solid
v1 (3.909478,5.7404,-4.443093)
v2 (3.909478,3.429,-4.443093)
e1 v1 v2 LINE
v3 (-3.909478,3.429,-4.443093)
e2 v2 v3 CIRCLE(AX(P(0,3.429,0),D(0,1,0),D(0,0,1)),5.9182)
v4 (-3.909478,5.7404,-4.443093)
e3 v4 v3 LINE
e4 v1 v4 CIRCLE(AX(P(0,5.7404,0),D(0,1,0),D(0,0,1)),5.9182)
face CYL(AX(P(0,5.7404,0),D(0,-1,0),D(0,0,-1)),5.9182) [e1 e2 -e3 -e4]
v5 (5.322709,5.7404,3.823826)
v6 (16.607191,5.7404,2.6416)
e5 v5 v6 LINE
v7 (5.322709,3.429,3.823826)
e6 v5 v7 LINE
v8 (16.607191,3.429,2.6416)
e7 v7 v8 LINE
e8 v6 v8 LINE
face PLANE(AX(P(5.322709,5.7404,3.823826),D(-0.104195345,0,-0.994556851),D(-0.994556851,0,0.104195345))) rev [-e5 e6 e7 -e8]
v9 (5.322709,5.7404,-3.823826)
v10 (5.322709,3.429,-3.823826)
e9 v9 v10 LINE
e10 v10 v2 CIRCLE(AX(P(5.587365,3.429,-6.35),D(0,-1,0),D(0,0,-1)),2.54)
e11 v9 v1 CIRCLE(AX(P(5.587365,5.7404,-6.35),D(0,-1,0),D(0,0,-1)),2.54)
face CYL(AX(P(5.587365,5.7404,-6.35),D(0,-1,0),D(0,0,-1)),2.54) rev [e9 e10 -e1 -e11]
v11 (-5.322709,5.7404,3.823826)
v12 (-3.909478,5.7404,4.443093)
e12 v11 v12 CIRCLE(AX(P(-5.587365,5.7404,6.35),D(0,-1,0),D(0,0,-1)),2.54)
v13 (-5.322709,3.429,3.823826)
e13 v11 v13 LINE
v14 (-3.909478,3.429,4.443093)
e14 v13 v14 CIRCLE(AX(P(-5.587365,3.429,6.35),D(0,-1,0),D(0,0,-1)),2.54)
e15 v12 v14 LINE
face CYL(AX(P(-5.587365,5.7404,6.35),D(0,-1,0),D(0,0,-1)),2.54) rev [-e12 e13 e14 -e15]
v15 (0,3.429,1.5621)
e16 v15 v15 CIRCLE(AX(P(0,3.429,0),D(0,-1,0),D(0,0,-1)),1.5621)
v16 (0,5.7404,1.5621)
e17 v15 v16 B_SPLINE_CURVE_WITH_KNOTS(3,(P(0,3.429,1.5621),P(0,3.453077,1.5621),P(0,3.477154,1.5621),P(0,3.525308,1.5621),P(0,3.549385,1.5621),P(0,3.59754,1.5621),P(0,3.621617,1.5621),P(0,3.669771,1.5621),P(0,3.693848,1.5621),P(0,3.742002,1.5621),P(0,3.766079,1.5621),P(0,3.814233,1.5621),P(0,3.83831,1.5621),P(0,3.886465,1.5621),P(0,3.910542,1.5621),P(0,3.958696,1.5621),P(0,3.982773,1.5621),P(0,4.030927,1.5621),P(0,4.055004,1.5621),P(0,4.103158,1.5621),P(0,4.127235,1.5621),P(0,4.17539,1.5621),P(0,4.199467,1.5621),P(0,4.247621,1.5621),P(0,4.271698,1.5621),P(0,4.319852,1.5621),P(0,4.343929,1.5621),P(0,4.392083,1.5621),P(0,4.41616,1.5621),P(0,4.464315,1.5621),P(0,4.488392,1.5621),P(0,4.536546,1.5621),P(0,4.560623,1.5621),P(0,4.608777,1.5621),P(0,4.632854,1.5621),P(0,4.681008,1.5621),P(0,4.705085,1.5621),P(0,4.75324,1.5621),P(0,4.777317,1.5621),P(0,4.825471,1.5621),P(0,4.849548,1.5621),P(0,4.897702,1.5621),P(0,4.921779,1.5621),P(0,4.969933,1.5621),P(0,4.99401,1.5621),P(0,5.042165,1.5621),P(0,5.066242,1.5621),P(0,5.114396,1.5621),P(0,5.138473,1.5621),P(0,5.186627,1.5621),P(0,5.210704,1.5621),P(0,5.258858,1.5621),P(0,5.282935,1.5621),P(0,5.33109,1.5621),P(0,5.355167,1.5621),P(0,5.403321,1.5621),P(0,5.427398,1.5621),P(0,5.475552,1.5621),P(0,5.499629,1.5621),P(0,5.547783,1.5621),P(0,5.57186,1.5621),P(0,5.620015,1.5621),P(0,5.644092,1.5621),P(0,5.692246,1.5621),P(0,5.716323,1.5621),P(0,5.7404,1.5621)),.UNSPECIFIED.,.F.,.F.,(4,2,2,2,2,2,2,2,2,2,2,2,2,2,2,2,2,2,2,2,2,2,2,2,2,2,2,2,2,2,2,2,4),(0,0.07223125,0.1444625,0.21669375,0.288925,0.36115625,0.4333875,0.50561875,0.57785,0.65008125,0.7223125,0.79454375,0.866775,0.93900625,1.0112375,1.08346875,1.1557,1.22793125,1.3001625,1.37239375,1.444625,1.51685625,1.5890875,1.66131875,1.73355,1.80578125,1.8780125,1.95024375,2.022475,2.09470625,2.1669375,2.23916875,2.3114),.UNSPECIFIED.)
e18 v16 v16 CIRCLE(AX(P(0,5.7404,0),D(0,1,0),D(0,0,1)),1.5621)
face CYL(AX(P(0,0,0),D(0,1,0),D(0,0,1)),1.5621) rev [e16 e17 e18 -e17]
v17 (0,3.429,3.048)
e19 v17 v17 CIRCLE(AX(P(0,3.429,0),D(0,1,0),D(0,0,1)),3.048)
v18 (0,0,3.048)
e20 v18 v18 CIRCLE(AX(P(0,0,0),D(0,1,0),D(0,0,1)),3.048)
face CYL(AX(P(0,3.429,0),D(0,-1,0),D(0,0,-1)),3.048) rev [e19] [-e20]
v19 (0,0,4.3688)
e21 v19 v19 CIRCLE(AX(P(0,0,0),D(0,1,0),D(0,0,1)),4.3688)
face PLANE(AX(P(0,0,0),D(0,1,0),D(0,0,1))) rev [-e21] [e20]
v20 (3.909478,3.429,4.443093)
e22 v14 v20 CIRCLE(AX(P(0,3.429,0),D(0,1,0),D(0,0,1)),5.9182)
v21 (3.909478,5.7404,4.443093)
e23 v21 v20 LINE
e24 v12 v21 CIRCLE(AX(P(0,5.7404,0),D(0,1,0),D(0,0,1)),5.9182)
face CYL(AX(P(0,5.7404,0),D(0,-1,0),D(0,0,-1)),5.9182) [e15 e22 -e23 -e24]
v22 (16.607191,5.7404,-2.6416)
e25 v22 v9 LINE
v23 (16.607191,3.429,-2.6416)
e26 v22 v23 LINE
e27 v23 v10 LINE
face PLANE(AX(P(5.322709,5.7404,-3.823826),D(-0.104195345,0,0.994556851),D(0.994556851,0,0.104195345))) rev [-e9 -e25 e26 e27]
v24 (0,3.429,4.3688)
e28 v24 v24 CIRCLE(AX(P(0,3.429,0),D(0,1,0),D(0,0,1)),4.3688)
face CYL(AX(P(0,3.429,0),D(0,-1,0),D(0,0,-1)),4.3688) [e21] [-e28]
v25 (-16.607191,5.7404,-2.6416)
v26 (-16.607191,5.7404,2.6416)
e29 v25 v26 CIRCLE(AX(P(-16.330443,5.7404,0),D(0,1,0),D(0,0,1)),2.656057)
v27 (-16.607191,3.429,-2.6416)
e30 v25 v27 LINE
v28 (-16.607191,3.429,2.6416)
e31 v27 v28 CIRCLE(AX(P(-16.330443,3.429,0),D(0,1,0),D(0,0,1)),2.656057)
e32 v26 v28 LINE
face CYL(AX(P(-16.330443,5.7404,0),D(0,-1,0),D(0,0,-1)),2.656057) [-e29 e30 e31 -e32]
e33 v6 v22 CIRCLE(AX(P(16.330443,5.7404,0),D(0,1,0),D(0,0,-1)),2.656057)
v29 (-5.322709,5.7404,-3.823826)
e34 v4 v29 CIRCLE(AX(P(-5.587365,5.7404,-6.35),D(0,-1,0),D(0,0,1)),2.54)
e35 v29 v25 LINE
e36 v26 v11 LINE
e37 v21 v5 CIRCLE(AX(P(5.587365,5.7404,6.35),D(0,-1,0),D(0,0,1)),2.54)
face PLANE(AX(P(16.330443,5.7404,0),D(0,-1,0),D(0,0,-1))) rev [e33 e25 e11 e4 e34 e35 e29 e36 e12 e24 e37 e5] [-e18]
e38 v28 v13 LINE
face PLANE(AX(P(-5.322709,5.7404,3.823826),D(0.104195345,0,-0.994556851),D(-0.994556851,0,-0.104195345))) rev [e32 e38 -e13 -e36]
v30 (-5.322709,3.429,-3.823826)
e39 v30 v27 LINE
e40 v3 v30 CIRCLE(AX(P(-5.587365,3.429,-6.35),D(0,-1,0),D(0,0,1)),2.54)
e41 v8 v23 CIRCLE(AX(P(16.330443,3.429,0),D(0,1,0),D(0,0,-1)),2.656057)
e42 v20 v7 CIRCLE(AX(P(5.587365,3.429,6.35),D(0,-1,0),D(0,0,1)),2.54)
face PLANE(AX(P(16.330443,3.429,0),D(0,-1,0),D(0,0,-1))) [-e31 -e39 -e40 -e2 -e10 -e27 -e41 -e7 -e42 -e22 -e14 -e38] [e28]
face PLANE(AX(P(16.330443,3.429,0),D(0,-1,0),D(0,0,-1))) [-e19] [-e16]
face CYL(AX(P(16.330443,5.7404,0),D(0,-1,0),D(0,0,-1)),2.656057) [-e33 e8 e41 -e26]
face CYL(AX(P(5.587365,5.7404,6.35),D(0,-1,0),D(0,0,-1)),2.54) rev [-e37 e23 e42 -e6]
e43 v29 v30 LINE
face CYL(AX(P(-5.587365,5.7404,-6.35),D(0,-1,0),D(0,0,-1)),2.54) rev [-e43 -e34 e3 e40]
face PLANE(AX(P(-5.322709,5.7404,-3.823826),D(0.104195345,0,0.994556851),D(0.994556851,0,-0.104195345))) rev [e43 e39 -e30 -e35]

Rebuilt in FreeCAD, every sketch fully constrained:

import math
import FreeCAD as App
import Part
import Sketcher
Q = App.Units.Quantity

doc = App.newDocument("Part")
body = doc.addObject("PartDesign::Body", "Body")

# Sketch on XZ plane
sketch1 = doc.addObject("Sketcher::SketchObject", "Sketch")
body.addObject(sketch1)
sketch1.AttachmentSupport = (doc.XZ_Plane, [""])
sketch1.MapMode = "FlatFace"
sketch1.addGeometry([
    Part.Circle(App.Vector(0, 0, 0), App.Vector(0, 0, 1), 4.3688),
    Part.Circle(App.Vector(0, 0, 0), App.Vector(0, 0, 1), 3.048),
], False)
sketch1.addConstraint([
    Sketcher.Constraint("Coincident", 0, 3, -1, 1),
    Sketcher.Constraint("Coincident", 1, 3, -1, 1),
    Sketcher.Constraint("Diameter", 1, Q("0.24 in")),
    Sketcher.Constraint("Diameter", 0, Q("0.344 in")),
])
pad1 = doc.addObject("PartDesign::Pad", "Pad")
body.addObject(pad1)
pad1.Profile = sketch1
pad1.Length = Q("0.135 in")
pad1.Reversed = True

# Sketch on XZ plane
sketch2 = doc.addObject("Sketcher::SketchObject", "Sketch001")
body.addObject(sketch2)
sketch2.AttachmentSupport = (doc.XZ_Plane, [""])
sketch2.MapMode = "FlatFace"
sketch2.AttachmentOffset = App.Placement(App.Vector(0, 0, -0.135 * 25.4), App.Rotation())
sketch2.addGeometry([
    Part.LineSegment(App.Vector(16.607191, -2.6416, 0), App.Vector(5.322709, -3.823826, 0)),  # 0
    Part.ArcOfCircle(Part.Circle(App.Vector(5.587365, -6.35, 0), App.Vector(0, 0, 1), 2.54), math.radians(95.980809), math.radians(131.344548)),  # 1
    Part.ArcOfCircle(Part.Circle(App.Vector(0, 0, 0), App.Vector(0, 0, 1), 5.9182), math.radians(-131.344548), math.radians(-48.655452)),  # 2
    Part.ArcOfCircle(Part.Circle(App.Vector(-5.587365, -6.35, 0), App.Vector(0, 0, 1), 2.54), math.radians(48.655452), math.radians(84.019191)),  # 3
    Part.LineSegment(App.Vector(-5.322709, -3.823826, 0), App.Vector(-16.607191, -2.6416, 0)),  # 4
    Part.ArcOfCircle(Part.Circle(App.Vector(-16.330443, 0, 0), App.Vector(0, 0, 1), 2.656057), math.radians(95.980809), math.radians(264.019191)),  # 5
    Part.LineSegment(App.Vector(-16.607191, 2.6416, 0), App.Vector(-5.322709, 3.823826, 0)),  # 6
    Part.ArcOfCircle(Part.Circle(App.Vector(-5.587365, 6.35, 0), App.Vector(0, 0, 1), 2.54), math.radians(-84.019191), math.radians(-48.655452)),  # 7
    Part.ArcOfCircle(Part.Circle(App.Vector(0, 0, 0), App.Vector(0, 0, 1), 5.9182), math.radians(48.655452), math.radians(131.344548)),  # 8
    Part.ArcOfCircle(Part.Circle(App.Vector(5.587365, 6.35, 0), App.Vector(0, 0, 1), 2.54), math.radians(-131.344548), math.radians(-95.980809)),  # 9
    Part.LineSegment(App.Vector(5.322709, 3.823826, 0), App.Vector(16.607191, 2.6416, 0)),  # 10
    Part.ArcOfCircle(Part.Circle(App.Vector(16.330443, 0, 0), App.Vector(0, 0, 1), 2.656057), math.radians(-84.019191), math.radians(84.019191)),  # 11
], False)
sketch2.addConstraint([
    Sketcher.Constraint("Tangent", 0, 2, 1, 1),
    Sketcher.Constraint("Tangent", 1, 2, 2, 2),
    Sketcher.Constraint("Tangent", 2, 1, 3, 1),
    Sketcher.Constraint("Tangent", 3, 2, 4, 1),
    Sketcher.Constraint("Tangent", 4, 2, 5, 2),
    Sketcher.Constraint("Tangent", 5, 1, 6, 1),
    Sketcher.Constraint("Tangent", 6, 2, 7, 1),
    Sketcher.Constraint("Tangent", 7, 2, 8, 2),
    Sketcher.Constraint("Tangent", 8, 1, 9, 1),
    Sketcher.Constraint("Tangent", 9, 2, 10, 1),
    Sketcher.Constraint("Tangent", 10, 2, 11, 2),
    Sketcher.Constraint("Tangent", 11, 1, 0, 1),
    Sketcher.Constraint("Coincident", 2, 3, -1, 1),
    Sketcher.Constraint("Coincident", 8, 3, -1, 1),
    Sketcher.Constraint("Equal", 1, 3),
    Sketcher.Constraint("Equal", 3, 7),
    Sketcher.Constraint("Equal", 2, 8),
    Sketcher.Constraint("Equal", 7, 9),
    Sketcher.Constraint("Equal", 5, 11),
    Sketcher.Constraint("Symmetric", 5, 3, 11, 3, -1, 1),
    Sketcher.Constraint("Symmetric", 0, 2, 3, 2, -2),
    Sketcher.Constraint("Parallel", 0, 6),
    Sketcher.Constraint("Parallel", 4, 10),
    Sketcher.Constraint("Radius", 1, Q("0.1 in")),
    Sketcher.Constraint("Radius", 2, Q("0.233 in")),
    Sketcher.Constraint("DistanceY", 3, 3, 7, 3, Q("0.5 in")),
    Sketcher.Constraint("DistanceY", 4, 2, -1, 1, Q("0.104 in")),
    Sketcher.Constraint("Distance", 0, 11.346242),
])
pad2 = doc.addObject("PartDesign::Pad", "Pad001")
body.addObject(pad2)
pad2.Profile = sketch2
pad2.Length = Q("0.091 in")
pad2.Reversed = True

# Sketch on XZ plane
sketch3 = doc.addObject("Sketcher::SketchObject", "Sketch002")
body.addObject(sketch3)
sketch3.AttachmentSupport = (doc.XZ_Plane, [""])
sketch3.MapMode = "FlatFace"
sketch3.AttachmentOffset = App.Placement(App.Vector(0, 0, -0.226 * 25.4), App.Rotation())
sketch3.addGeometry(Part.Circle(App.Vector(0, 0, 0), App.Vector(0, 0, 1), 1.5621), False)
sketch3.addConstraint([
    Sketcher.Constraint("Coincident", 0, 3, -1, 1),
    Sketcher.Constraint("Diameter", 0, Q("0.123 in")),
])
pocket1 = doc.addObject("PartDesign::Pocket", "Pocket")
body.addObject(pocket1)
pocket1.Profile = sketch3
pocket1.Type = "ThroughAll"
pocket1.Reversed = True

doc.recompute()
